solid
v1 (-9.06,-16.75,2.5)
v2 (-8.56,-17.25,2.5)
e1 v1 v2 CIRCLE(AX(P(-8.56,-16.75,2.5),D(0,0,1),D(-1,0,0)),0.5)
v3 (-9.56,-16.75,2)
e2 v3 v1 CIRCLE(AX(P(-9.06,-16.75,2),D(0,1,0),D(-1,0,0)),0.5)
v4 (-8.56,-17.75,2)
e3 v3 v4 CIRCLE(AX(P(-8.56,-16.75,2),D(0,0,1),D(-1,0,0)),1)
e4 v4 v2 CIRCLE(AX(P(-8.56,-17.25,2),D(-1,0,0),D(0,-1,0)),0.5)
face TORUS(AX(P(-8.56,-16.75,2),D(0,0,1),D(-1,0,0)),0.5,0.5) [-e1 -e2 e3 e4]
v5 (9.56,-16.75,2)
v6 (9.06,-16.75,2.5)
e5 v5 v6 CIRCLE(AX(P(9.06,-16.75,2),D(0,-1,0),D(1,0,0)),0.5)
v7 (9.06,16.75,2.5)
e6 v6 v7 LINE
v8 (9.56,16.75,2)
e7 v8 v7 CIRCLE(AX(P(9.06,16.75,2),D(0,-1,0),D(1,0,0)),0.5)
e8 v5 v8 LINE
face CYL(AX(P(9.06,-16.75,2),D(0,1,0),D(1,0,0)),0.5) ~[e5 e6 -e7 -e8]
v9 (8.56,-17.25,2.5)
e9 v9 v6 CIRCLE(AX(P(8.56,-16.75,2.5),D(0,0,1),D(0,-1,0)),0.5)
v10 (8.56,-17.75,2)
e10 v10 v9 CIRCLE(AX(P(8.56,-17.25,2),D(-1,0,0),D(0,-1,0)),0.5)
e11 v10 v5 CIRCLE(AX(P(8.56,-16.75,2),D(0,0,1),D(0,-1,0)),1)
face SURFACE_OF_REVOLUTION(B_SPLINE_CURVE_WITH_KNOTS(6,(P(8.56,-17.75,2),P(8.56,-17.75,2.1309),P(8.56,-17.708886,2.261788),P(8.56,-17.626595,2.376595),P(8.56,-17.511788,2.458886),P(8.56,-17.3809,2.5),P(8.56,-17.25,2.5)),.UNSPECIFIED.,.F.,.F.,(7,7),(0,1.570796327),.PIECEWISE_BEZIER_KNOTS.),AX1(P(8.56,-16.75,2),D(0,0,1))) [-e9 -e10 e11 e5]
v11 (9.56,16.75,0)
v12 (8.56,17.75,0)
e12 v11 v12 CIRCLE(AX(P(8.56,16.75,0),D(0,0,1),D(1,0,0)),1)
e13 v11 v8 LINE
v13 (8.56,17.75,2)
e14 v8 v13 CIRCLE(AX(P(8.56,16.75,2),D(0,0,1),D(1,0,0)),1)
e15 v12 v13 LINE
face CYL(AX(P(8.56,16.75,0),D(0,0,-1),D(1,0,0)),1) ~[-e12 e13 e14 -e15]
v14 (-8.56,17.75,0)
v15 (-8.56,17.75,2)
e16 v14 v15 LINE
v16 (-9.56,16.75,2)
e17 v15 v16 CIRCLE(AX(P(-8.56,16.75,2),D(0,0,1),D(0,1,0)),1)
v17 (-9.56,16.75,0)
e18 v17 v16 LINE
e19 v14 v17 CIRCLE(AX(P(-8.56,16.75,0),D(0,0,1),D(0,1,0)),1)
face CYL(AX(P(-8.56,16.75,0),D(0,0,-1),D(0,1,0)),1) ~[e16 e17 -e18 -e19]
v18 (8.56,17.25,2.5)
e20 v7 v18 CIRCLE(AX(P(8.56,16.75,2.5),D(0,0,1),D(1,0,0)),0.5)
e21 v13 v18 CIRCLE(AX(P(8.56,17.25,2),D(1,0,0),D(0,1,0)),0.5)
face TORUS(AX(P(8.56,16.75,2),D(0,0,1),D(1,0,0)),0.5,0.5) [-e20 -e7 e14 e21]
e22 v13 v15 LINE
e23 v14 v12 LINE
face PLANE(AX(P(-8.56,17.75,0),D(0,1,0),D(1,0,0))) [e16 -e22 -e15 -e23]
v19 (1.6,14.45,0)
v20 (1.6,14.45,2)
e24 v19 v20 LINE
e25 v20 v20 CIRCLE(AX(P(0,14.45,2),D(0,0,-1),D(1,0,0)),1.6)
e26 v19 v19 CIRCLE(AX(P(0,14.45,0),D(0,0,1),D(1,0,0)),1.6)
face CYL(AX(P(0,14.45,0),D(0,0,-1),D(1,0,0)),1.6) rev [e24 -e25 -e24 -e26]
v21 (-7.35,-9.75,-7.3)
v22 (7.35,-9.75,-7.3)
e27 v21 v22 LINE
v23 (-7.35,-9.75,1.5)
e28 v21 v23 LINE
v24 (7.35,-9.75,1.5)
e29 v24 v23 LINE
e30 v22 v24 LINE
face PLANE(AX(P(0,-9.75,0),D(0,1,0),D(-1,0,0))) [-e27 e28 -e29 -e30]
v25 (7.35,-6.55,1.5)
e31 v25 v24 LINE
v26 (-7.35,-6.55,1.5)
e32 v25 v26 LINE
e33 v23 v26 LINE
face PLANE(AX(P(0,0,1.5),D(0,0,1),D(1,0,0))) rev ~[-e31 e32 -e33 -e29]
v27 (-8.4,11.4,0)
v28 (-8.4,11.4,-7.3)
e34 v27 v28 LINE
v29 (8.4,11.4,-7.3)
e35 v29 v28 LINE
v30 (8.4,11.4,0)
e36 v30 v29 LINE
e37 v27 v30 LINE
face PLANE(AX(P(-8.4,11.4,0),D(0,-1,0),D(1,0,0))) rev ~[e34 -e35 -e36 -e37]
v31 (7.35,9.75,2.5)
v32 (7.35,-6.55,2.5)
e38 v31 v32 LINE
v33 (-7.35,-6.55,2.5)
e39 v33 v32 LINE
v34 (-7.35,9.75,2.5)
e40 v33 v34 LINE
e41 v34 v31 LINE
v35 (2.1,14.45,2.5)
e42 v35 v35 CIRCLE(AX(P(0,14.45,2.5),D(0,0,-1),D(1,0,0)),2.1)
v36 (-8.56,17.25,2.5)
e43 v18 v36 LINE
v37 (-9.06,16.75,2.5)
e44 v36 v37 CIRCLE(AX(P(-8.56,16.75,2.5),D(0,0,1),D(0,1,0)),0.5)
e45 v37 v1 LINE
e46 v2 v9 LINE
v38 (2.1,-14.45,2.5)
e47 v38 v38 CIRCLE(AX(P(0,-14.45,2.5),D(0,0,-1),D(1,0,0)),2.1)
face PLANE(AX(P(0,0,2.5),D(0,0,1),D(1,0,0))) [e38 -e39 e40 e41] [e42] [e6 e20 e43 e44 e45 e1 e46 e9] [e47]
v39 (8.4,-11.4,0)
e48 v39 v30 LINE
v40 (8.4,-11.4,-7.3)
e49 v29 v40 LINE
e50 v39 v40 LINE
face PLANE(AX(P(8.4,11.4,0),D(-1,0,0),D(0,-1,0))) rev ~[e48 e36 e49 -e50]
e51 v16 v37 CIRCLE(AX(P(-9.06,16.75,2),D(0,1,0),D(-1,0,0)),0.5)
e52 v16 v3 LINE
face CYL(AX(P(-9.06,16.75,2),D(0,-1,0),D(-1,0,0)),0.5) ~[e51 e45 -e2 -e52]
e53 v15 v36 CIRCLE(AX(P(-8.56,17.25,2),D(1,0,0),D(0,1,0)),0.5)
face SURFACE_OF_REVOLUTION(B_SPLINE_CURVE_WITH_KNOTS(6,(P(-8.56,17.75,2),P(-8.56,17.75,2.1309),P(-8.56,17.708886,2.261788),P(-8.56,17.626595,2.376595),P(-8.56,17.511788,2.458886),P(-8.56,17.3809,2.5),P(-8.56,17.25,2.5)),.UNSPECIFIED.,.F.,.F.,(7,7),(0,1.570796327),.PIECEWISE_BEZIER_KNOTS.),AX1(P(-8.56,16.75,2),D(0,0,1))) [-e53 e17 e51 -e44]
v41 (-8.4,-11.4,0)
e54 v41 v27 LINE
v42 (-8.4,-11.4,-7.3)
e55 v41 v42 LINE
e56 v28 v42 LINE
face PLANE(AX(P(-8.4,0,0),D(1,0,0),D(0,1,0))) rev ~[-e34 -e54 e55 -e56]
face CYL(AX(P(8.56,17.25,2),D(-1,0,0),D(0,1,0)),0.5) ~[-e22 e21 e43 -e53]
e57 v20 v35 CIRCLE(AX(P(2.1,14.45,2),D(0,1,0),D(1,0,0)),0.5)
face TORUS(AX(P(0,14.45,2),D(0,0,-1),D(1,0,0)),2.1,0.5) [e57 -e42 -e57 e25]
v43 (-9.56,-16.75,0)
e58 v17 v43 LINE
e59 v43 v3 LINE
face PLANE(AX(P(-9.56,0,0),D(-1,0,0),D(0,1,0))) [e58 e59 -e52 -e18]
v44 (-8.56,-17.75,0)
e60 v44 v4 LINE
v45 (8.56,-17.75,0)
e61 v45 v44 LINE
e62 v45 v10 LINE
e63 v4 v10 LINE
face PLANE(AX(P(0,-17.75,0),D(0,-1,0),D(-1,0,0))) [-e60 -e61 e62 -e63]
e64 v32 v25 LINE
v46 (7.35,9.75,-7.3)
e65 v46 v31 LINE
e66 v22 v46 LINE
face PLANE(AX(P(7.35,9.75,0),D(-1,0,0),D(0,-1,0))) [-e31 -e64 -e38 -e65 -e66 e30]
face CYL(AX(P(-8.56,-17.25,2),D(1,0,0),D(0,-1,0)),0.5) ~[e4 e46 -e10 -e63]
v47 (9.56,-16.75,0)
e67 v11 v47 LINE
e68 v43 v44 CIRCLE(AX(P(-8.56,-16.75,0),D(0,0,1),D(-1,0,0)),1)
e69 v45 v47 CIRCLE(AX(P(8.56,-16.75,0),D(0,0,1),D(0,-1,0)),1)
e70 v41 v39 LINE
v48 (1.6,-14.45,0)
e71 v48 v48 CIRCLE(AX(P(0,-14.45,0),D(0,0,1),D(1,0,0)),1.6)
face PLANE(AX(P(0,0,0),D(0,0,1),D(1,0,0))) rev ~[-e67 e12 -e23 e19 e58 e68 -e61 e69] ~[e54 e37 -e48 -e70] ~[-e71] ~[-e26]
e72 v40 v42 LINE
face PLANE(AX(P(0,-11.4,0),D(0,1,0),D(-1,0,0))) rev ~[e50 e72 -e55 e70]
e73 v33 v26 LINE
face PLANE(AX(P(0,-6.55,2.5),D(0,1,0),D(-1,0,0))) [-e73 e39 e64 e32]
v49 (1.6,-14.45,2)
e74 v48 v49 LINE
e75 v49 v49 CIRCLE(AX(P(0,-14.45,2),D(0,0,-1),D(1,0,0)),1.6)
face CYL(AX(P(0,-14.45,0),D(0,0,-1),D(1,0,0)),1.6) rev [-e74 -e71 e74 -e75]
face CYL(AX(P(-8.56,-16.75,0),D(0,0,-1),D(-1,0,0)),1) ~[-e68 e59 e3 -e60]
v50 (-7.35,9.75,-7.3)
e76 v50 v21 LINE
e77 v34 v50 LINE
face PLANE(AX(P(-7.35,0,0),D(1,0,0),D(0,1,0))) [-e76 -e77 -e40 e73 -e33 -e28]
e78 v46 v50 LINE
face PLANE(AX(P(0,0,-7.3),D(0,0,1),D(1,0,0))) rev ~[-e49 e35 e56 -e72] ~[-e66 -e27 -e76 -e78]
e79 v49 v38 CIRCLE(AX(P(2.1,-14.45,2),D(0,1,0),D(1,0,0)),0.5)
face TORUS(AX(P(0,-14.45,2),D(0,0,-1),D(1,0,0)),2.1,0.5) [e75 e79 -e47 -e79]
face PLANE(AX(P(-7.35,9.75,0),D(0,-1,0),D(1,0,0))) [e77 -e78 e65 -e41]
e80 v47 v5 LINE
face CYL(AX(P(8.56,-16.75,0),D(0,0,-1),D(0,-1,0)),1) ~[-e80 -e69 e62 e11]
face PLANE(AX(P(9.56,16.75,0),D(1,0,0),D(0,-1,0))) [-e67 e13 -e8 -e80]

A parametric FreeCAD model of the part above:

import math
import FreeCAD as App
import Part
import Sketcher
from FreeCAD import Vector


def edges_at(feature, points):
    """Names of the edges that pass closest to the given points."""
    edges = feature.Shape.Edges
    near = lambda p: min(range(len(edges)), key=lambda i: edges[i].distToShape(Part.Vertex(*p))[0])
    return sorted({f"Edge{near(p) + 1}" for p in points})

doc = App.newDocument("Part")
body = doc.addObject("PartDesign::Body", "Body")

sketch1 = doc.addObject("Sketcher::SketchObject", "Sketch")
body.addObject(sketch1)
sketch1.AttachmentSupport = (doc.XY_Plane, [""])
sketch1.MapMode = "FlatFace"
sketch1.addGeometry([
    Part.LineSegment(Vector(-8, 11, 0), Vector(-8, -11, 0)),
    Part.LineSegment(Vector(-8, -11, 0), Vector(8, -11, 0)),
    Part.LineSegment(Vector(8, -11, 0), Vector(8, 11, 0)),
    Part.LineSegment(Vector(8, 11, 0), Vector(-8, 11, 0)),
    Part.LineSegment(Vector(-7, 10, 0), Vector(7, 10, 0)),
    Part.LineSegment(Vector(7, 10, 0), Vector(7, -10, 0)),
    Part.LineSegment(Vector(7, -10, 0), Vector(-7, -10, 0)),
    Part.LineSegment(Vector(-7, -10, 0), Vector(-7, 10, 0)),
], False)
sketch1.addConstraint([
    Sketcher.Constraint("Coincident", 0, 2, 1, 1),
    Sketcher.Constraint("Coincident", 1, 2, 2, 1),
    Sketcher.Constraint("Coincident", 2, 2, 3, 1),
    Sketcher.Constraint("Coincident", 3, 2, 0, 1),
    Sketcher.Constraint("Coincident", 4, 2, 5, 1),
    Sketcher.Constraint("Coincident", 5, 2, 6, 1),
    Sketcher.Constraint("Coincident", 6, 2, 7, 1),
    Sketcher.Constraint("Coincident", 7, 2, 4, 1),
    Sketcher.Constraint("Vertical", 0),
    Sketcher.Constraint("Horizontal", 1),
    Sketcher.Constraint("Vertical", 2),
    Sketcher.Constraint("Horizontal", 3),
    Sketcher.Constraint("Horizontal", 4),
    Sketcher.Constraint("Vertical", 5),
    Sketcher.Constraint("Horizontal", 6),
    Sketcher.Constraint("Vertical", 7),
    Sketcher.Constraint("Symmetric", 0, 2, 2, 2, -1, 1),
    Sketcher.Constraint("Symmetric", 4, 2, 6, 2, -1, 1),
    Sketcher.Constraint("DistanceX", 1, 1, 1, 2, 16.8),
    Sketcher.Constraint("DistanceX", 4, 1, 4, 2, 14.7),
    Sketcher.Constraint("DistanceY", 0, 2, 0, 1, 22.8),
    Sketcher.Constraint("DistanceY", 5, 2, 5, 1, 19.5),
])
pad1 = doc.addObject("PartDesign::Pad", "Pad")
body.addObject(pad1)
pad1.Profile = sketch1
pad1.Length = 7.3
pad1.Reversed = True

sketch2 = doc.addObject("Sketcher::SketchObject", "Sketch001")
body.addObject(sketch2)
sketch2.AttachmentSupport = (doc.XY_Plane, [""])
sketch2.MapMode = "FlatFace"
sketch2.addGeometry([
    Part.LineSegment(Vector(-9.6, 16.8, 0), Vector(-9.6, -16.8, 0)),
    Part.ArcOfCircle(Part.Circle(Vector(-8.6, -16.8, 0), Vector(0, 0, 1), 1), math.radians(180), math.radians(270)),
    Part.LineSegment(Vector(-8.6, -17.8, 0), Vector(8.6, -17.8, 0)),
    Part.ArcOfCircle(Part.Circle(Vector(8.6, -16.8, 0), Vector(0, 0, 1), 1), math.radians(-90), math.radians(0)),
    Part.LineSegment(Vector(9.6, -16.8, 0), Vector(9.6, 16.8, 0)),
    Part.ArcOfCircle(Part.Circle(Vector(8.6, 16.8, 0), Vector(0, 0, 1), 1), math.radians(0), math.radians(90)),
    Part.LineSegment(Vector(8.6, 17.8, 0), Vector(-8.6, 17.8, 0)),
    Part.ArcOfCircle(Part.Circle(Vector(-8.6, 16.8, 0), Vector(0, 0, 1), 1), math.radians(90), math.radians(180)),
    Part.Circle(Vector(0, 14.4, 0), Vector(0, 0, 1), 1.6),
    Part.LineSegment(Vector(-7.3, 9.8, 0), Vector(7.3, 9.8, 0)),
    Part.LineSegment(Vector(7.3, 9.8, 0), Vector(7.3, -9.8, 0)),
    Part.LineSegment(Vector(7.3, -9.8, 0), Vector(-7.3, -9.8, 0)),
    Part.LineSegment(Vector(-7.3, -9.8, 0), Vector(-7.3, 9.8, 0)),
    Part.Circle(Vector(0, -14.4, 0), Vector(0, 0, 1), 1.6),
], False)
sketch2.addConstraint([
    Sketcher.Constraint("Tangent", 0, 2, 1, 1),
    Sketcher.Constraint("Tangent", 1, 2, 2, 1),
    Sketcher.Constraint("Tangent", 2, 2, 3, 1),
    Sketcher.Constraint("Tangent", 3, 2, 4, 1),
    Sketcher.Constraint("Tangent", 4, 2, 5, 1),
    Sketcher.Constraint("Tangent", 5, 2, 6, 1),
    Sketcher.Constraint("Tangent", 6, 2, 7, 1),
    Sketcher.Constraint("Tangent", 7, 2, 0, 1),
    Sketcher.Constraint("Coincident", 9, 2, 10, 1),
    Sketcher.Constraint("Coincident", 10, 2, 11, 1),
    Sketcher.Constraint("Coincident", 11, 2, 12, 1),
    Sketcher.Constraint("Coincident", 12, 2, 9, 1),
    Sketcher.Constraint("Vertical", 0),
    Sketcher.Constraint("Horizontal", 2),
    Sketcher.Constraint("Vertical", 4),
    Sketcher.Constraint("Horizontal", 6),
    Sketcher.Constraint("Horizontal", 9),
    Sketcher.Constraint("Vertical", 10),
    Sketcher.Constraint("Horizontal", 11),
    Sketcher.Constraint("Vertical", 12),
    Sketcher.Constraint("Equal", 1, 3),
    Sketcher.Constraint("Equal", 3, 5),
    Sketcher.Constraint("Equal", 5, 7),
    Sketcher.Constraint("Equal", 8, 13),
    Sketcher.Constraint("Symmetric", 1, 3, 5, 3, -1, 1),
    Sketcher.Constraint("Symmetric", 8, 3, 13, 3, -1, 1),
    Sketcher.Constraint("Symmetric", 9, 2, 11, 2, -1, 1),
    Sketcher.Constraint("PointOnObject", 8, 3, -2),
    Sketcher.Constraint("Radius", 1, 1.0),
    Sketcher.Constraint("Diameter", 8, 3.2),
    Sketcher.Constraint("DistanceX", 9, 1, 9, 2, 14.7),
    Sketcher.Constraint("DistanceY", 10, 2, 10, 1, 19.5),
    Sketcher.Constraint("DistanceY", 13, 3, 8, 3, 28.9),
    Sketcher.Constraint("DistanceY", 0, 2, 0, 1, 33.5),
    Sketcher.Constraint("DistanceX", 2, 1, 2, 2, 17.12),
])
pad2 = doc.addObject("PartDesign::Pad", "Pad001")
body.addObject(pad2)
pad2.Profile = sketch2
pad2.Length = 2.5

sketch3 = doc.addObject("Sketcher::SketchObject", "Sketch002")
body.addObject(sketch3)
sketch3.AttachmentSupport = (doc.XY_Plane, [""])
sketch3.MapMode = "FlatFace"
sketch3.AttachmentOffset = App.Placement(Vector(0, 0, 2.5), App.Rotation())
sketch3.addGeometry([
    Part.LineSegment(Vector(-7.3, -6.5, 0), Vector(-7.3, -9.8, 0)),
    Part.LineSegment(Vector(-7.3, -9.8, 0), Vector(7.3, -9.8, 0)),
    Part.LineSegment(Vector(7.3, -9.8, 0), Vector(7.3, -6.5, 0)),
    Part.LineSegment(Vector(7.3, -6.5, 0), Vector(-7.3, -6.5, 0)),
], False)
sketch3.addConstraint([
    Sketcher.Constraint("Coincident", 0, 2, 1, 1),
    Sketcher.Constraint("Coincident", 1, 2, 2, 1),
    Sketcher.Constraint("Coincident", 2, 2, 3, 1),
    Sketcher.Constraint("Coincident", 3, 2, 0, 1),
    Sketcher.Constraint("Vertical", 0),
    Sketcher.Constraint("Horizontal", 1),
    Sketcher.Constraint("Vertical", 2),
    Sketcher.Constraint("Horizontal", 3),
    Sketcher.Constraint("DistanceX", 1, 1, 1, 2, 14.7),
    Sketcher.Constraint("DistanceY", 0, 2, 0, 1, 3.2),
    Sketcher.Constraint("DistanceX", 0, 2, -1, 1, 7.35),
    Sketcher.Constraint("DistanceY", 0, 2, -1, 1, 9.75),
])
pad3 = doc.addObject("PartDesign::Pad", "Pad002")
body.addObject(pad3)
pad3.Profile = sketch3
pad3.Length = 1
pad3.Reversed = True
doc.recompute()

fillet = doc.addObject("PartDesign::Fillet", "Fillet")
body.addObject(fillet)
fillet.Base = (pad3, edges_at(pad3, [
    (-9.267, 17.457, 2.5),
    (-9.56, 0, 2.5),
    (-9.267, -17.457, 2.5),
    (0, -17.75, 2.5),
    (9.267, -17.457, 2.5),
    (9.56, 0, 2.5),
    (9.267, 17.457, 2.5),
    (0, 17.75, 2.5),
    (-1.6, 14.45, 2.5),
    (-1.6, -14.45, 2.5),
]))
fillet.Radius = 0.5

doc.recompute()
